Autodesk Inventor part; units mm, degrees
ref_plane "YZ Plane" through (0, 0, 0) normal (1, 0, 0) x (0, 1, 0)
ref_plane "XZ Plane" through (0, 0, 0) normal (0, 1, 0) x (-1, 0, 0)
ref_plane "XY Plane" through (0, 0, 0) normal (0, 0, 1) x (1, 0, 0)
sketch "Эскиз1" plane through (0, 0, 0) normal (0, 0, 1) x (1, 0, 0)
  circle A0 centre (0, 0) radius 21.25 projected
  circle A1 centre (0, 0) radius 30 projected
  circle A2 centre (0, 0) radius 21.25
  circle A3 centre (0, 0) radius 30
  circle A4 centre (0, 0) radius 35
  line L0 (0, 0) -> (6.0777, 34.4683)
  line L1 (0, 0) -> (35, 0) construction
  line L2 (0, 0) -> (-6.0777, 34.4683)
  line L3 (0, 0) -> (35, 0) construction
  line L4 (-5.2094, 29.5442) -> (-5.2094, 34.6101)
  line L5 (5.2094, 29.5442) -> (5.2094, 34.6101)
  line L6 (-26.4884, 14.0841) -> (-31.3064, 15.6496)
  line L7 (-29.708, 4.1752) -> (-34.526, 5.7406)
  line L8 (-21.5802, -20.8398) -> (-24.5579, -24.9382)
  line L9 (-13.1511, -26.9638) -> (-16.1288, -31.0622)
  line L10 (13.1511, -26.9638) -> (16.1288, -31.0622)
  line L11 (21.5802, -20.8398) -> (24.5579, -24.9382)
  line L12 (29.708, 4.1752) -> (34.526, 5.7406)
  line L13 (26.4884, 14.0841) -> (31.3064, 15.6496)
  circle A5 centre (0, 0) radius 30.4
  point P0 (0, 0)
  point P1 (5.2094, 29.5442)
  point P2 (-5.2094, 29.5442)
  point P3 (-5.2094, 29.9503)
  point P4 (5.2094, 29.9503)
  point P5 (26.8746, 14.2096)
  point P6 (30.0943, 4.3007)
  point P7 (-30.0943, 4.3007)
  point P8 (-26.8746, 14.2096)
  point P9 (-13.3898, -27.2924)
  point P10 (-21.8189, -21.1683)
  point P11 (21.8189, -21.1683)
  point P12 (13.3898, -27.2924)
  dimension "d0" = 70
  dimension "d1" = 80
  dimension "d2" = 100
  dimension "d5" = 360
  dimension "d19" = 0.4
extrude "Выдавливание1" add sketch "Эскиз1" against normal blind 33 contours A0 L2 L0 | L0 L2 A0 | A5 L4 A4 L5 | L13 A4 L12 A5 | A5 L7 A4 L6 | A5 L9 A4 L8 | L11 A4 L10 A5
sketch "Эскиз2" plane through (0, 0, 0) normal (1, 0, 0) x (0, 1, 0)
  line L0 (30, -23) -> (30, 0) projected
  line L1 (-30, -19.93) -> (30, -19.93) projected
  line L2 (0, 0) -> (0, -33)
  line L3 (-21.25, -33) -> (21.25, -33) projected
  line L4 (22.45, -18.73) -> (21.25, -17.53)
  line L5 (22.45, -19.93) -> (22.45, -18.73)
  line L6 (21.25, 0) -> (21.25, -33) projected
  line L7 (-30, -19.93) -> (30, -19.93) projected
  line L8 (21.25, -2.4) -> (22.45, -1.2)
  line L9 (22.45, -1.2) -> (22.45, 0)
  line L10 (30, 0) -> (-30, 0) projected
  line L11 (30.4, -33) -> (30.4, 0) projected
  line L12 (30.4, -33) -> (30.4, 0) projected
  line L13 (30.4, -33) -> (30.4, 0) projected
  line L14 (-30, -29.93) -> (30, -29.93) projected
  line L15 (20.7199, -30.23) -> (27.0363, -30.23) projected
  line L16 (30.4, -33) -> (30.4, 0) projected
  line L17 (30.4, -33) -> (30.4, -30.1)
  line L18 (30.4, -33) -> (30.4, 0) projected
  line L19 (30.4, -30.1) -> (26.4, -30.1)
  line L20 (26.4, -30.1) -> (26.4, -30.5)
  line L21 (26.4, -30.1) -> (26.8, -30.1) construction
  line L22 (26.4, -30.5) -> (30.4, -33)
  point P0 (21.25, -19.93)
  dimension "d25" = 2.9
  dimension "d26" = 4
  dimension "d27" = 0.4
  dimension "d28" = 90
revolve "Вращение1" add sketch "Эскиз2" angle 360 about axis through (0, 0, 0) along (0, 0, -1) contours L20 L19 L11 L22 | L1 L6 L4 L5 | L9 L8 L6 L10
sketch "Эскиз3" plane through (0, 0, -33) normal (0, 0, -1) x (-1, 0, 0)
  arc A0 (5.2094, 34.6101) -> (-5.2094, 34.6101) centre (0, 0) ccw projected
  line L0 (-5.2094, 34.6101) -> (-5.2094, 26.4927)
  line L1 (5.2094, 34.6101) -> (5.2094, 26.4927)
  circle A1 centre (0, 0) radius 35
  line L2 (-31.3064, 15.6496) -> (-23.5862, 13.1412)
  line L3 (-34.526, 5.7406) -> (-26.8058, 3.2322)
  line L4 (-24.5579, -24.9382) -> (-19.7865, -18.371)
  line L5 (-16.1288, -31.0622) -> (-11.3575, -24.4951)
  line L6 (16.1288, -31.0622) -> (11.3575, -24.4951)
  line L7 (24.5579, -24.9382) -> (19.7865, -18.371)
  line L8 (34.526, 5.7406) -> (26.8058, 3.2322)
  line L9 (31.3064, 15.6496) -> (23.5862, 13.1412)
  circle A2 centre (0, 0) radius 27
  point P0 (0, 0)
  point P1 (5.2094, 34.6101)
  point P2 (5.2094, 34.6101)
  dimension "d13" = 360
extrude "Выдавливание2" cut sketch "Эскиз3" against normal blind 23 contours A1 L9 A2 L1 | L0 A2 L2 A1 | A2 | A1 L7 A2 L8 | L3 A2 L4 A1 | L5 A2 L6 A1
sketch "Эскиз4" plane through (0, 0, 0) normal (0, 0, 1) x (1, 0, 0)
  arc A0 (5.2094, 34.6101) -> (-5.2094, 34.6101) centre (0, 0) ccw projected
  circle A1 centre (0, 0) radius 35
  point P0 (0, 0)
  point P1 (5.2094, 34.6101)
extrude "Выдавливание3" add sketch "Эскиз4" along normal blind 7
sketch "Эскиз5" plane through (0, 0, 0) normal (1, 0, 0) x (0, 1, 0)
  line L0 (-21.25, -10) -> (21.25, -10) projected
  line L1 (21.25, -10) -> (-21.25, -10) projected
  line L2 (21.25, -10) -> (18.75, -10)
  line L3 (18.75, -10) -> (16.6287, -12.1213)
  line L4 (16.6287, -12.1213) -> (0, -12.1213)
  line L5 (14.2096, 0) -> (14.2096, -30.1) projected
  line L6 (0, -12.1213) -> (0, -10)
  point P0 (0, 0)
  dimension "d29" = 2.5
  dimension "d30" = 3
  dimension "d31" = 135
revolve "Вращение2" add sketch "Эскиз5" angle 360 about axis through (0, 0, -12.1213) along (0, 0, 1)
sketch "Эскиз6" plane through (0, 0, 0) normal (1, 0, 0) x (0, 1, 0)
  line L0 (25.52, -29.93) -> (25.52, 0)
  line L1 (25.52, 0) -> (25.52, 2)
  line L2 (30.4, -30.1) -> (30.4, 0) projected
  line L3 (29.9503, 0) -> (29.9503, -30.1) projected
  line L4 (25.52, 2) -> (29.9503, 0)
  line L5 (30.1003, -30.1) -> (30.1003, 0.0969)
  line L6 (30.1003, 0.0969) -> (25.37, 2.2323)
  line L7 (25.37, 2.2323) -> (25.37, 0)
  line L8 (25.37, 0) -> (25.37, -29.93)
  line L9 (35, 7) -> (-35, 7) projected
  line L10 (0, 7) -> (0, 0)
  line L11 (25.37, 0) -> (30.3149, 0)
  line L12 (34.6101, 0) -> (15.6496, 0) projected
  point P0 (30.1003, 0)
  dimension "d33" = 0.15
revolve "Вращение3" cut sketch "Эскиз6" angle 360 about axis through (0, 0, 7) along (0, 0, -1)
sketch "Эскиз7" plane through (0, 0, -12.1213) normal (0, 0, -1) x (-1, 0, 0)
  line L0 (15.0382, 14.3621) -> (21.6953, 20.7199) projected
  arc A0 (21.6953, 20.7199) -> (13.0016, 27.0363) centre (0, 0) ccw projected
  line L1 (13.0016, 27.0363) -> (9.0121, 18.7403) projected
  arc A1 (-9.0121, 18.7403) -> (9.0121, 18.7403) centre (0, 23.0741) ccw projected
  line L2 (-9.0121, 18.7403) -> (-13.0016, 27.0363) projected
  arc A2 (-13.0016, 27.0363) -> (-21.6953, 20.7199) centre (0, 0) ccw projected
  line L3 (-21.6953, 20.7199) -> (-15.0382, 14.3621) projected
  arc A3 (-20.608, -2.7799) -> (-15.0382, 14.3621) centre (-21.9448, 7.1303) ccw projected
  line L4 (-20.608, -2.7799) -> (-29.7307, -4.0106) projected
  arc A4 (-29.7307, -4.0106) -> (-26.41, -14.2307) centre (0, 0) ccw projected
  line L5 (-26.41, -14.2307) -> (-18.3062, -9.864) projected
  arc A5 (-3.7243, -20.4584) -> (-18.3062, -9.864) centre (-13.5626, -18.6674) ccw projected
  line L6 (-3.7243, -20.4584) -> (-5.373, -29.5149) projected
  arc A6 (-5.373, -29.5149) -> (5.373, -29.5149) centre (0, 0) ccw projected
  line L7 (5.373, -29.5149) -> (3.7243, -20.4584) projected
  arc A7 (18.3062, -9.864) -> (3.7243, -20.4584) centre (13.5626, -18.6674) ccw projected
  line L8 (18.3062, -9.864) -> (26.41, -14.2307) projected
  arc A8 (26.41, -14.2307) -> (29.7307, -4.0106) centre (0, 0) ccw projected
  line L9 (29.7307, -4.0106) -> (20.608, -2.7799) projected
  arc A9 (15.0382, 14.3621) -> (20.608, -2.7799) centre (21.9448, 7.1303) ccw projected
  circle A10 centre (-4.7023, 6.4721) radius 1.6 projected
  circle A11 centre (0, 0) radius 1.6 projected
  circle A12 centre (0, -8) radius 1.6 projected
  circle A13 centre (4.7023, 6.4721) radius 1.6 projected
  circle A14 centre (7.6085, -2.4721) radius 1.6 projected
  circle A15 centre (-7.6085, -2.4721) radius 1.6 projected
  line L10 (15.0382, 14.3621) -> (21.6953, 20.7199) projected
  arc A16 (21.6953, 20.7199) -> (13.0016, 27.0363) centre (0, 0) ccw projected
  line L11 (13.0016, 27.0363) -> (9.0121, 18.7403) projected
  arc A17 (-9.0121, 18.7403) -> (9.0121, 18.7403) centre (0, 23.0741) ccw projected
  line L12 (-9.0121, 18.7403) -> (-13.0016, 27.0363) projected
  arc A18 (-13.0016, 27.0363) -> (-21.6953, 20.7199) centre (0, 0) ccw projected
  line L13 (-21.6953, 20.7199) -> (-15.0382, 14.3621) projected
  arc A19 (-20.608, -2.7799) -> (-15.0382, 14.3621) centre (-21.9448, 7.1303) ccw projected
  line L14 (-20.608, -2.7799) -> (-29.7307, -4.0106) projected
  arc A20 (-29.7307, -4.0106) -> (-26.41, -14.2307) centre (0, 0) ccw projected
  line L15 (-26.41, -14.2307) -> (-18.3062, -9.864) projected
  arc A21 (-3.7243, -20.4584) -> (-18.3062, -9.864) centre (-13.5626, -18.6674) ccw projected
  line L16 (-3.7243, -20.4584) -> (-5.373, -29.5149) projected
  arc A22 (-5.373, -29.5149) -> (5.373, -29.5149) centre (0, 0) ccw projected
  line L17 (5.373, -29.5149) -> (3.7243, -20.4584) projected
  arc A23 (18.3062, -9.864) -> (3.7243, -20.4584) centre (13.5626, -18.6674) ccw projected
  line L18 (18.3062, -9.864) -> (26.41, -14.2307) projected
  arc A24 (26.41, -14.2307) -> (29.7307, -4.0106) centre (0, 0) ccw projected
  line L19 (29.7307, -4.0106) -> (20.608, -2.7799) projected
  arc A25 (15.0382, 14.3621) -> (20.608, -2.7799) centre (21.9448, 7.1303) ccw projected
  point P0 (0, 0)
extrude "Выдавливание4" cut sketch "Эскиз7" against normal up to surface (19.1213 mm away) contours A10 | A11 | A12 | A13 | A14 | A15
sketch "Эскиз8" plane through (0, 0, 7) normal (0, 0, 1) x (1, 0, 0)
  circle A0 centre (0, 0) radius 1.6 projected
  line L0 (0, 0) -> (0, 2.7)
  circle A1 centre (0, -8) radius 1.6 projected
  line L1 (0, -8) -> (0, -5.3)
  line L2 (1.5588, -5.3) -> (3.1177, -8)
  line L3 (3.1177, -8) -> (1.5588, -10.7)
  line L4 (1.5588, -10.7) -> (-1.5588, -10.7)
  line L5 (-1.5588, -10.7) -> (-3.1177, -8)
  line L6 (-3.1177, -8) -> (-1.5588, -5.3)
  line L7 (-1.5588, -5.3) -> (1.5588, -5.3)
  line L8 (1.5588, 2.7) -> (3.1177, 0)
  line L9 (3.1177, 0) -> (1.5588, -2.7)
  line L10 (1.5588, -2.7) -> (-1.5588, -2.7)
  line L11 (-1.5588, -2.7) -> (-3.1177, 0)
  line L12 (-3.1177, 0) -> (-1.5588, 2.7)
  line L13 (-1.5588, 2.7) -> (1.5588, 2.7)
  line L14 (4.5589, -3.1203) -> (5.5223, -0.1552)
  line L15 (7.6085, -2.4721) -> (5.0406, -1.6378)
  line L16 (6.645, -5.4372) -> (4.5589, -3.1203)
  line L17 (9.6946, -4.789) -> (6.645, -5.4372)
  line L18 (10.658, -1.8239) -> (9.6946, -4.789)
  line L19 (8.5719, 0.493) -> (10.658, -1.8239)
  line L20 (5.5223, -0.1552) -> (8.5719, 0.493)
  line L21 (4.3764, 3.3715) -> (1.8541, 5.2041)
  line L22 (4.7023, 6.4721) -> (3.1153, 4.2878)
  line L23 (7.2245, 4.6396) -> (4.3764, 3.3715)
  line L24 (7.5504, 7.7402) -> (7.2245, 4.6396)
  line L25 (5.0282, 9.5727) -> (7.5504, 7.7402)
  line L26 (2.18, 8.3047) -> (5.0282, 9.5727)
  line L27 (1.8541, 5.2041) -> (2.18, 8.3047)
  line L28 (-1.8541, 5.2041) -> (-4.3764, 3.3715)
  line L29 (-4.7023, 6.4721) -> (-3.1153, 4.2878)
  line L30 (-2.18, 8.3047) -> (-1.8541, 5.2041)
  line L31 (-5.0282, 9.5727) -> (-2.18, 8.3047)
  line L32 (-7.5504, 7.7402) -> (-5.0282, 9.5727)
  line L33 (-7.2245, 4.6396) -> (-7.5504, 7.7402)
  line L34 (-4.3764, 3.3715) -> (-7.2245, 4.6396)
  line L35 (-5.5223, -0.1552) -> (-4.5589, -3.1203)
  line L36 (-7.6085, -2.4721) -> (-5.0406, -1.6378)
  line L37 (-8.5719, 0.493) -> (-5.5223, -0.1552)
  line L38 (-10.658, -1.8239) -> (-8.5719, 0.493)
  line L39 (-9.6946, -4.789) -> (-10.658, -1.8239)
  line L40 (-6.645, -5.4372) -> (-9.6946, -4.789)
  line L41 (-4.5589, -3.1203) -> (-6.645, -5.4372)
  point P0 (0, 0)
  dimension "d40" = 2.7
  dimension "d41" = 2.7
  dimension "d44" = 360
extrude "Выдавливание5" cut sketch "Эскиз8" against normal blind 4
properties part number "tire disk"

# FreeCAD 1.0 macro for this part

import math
import FreeCAD as App
import Part
import Sketcher
Q = App.Units.Quantity

doc = App.newDocument("Part")
body = doc.addObject("PartDesign::Body", "Body")
body.AllowCompound = True

sketch1 = body.newObject("Sketcher::SketchObject", "Sketch")
sketch1.AttachmentSupport = (doc.getObject("XY_Plane"), [""])
sketch1.MapMode = "FlatFace"
sketch1.addGeometry([
    Part.Circle(App.Vector(0, 0, 0), App.Vector(0, 0, 1), 21.2),
    Part.ArcOfCircle(Part.Circle(App.Vector(0, 0, 0), App.Vector(0, 0, 1), 30.4), math.radians(80.13), math.radians(99.87)),
    Part.LineSegment(App.Vector(5.2, 30, 0), App.Vector(5.2, 34.6, 0)),
    Part.ArcOfCircle(Part.Circle(App.Vector(0, 0, 0), App.Vector(0, 0, 1), 35), math.radians(81.44), math.radians(98.56)),
    Part.LineSegment(App.Vector(-5.2, 34.6, 0), App.Vector(-5.2, 30, 0)),
    Part.LineSegment(App.Vector(31.3, 15.6, 0), App.Vector(26.9, 14.2, 0)),
    Part.ArcOfCircle(Part.Circle(App.Vector(0, 0, 0), App.Vector(0, 0, 1), 30.4), math.radians(8.13), math.radians(27.87)),
    Part.LineSegment(App.Vector(30.1, 4.3, 0), App.Vector(34.5, 5.7, 0)),
    Part.ArcOfCircle(Part.Circle(App.Vector(0, 0, 0), App.Vector(0, 0, 1), 35), math.radians(9.44), math.radians(26.56)),
    Part.ArcOfCircle(Part.Circle(App.Vector(0, 0, 0), App.Vector(0, 0, 1), 30.4), math.radians(152.13), math.radians(171.87)),
    Part.LineSegment(App.Vector(-26.9, 14.2, 0), App.Vector(-31.3, 15.6, 0)),
    Part.ArcOfCircle(Part.Circle(App.Vector(0, 0, 0), App.Vector(0, 0, 1), 35), math.radians(153.44), math.radians(170.56)),
    Part.LineSegment(App.Vector(-34.5, 5.7, 0), App.Vector(-30.1, 4.3, 0)),
    Part.ArcOfCircle(Part.Circle(App.Vector(0, 0, 0), App.Vector(0, 0, 1), 30.4), math.radians(-135.87), math.radians(-116.13)),
    Part.LineSegment(App.Vector(-21.8, -21.2, 0), App.Vector(-24.6, -24.9, 0)),
    Part.ArcOfCircle(Part.Circle(App.Vector(0, 0, 0), App.Vector(0, 0, 1), 35), math.radians(-134.56), math.radians(-117.44)),
    Part.LineSegment(App.Vector(-16.1, -31.1, 0), App.Vector(-13.4, -27.3, 0)),
    Part.LineSegment(App.Vector(24.6, -24.9, 0), App.Vector(21.8, -21.2, 0)),
    Part.ArcOfCircle(Part.Circle(App.Vector(0, 0, 0), App.Vector(0, 0, 1), 30.4), math.radians(-63.87), math.radians(-44.13)),
    Part.LineSegment(App.Vector(13.4, -27.3, 0), App.Vector(16.1, -31.1, 0)),
    Part.ArcOfCircle(Part.Circle(App.Vector(0, 0, 0), App.Vector(0, 0, 1), 35), math.radians(-62.56), math.radians(-45.44)),
], False)
sketch1.addConstraint([
    Sketcher.Constraint("Coincident", 1, 1, 2, 1),
    Sketcher.Constraint("Coincident", 2, 2, 3, 1),
    Sketcher.Constraint("Coincident", 3, 2, 4, 1),
    Sketcher.Constraint("Coincident", 4, 2, 1, 2),
    Sketcher.Constraint("Coincident", 5, 2, 6, 2),
    Sketcher.Constraint("Coincident", 6, 1, 7, 1),
    Sketcher.Constraint("Coincident", 7, 2, 8, 1),
    Sketcher.Constraint("Coincident", 8, 2, 5, 1),
    Sketcher.Constraint("Coincident", 9, 1, 10, 1),
    Sketcher.Constraint("Coincident", 10, 2, 11, 1),
    Sketcher.Constraint("Coincident", 11, 2, 12, 1),
    Sketcher.Constraint("Coincident", 12, 2, 9, 2),
    Sketcher.Constraint("Coincident", 13, 1, 14, 1),
    Sketcher.Constraint("Coincident", 14, 2, 15, 1),
    Sketcher.Constraint("Coincident", 15, 2, 16, 1),
    Sketcher.Constraint("Coincident", 16, 2, 13, 2),
    Sketcher.Constraint("Coincident", 17, 2, 18, 2),
    Sketcher.Constraint("Coincident", 18, 1, 19, 1),
    Sketcher.Constraint("Coincident", 19, 2, 20, 1),
    Sketcher.Constraint("Coincident", 20, 2, 17, 1),
    Sketcher.Constraint("Vertical", 2),
    Sketcher.Constraint("Vertical", 4),
    Sketcher.Constraint("Coincident", 0, 3, -1, 1),
    Sketcher.Constraint("Coincident", 1, 3, -1, 1),
    Sketcher.Constraint("Coincident", 3, 3, -1, 1),
    Sketcher.Constraint("Coincident", 6, 3, -1, 1),
    Sketcher.Constraint("Coincident", 8, 3, -1, 1),
    Sketcher.Constraint("Coincident", 9, 3, -1, 1),
    Sketcher.Constraint("Coincident", 11, 3, -1, 1),
    Sketcher.Constraint("Coincident", 13, 3, -1, 1),
    Sketcher.Constraint("Coincident", 15, 3, -1, 1),
    Sketcher.Constraint("Coincident", 18, 3, -1, 1),
    Sketcher.Constraint("Coincident", 20, 3, -1, 1),
    Sketcher.Constraint("Equal", 1, 6),
    Sketcher.Constraint("Equal", 3, 8),
    Sketcher.Constraint("Equal", 6, 9),
    Sketcher.Constraint("Equal", 8, 11),
    Sketcher.Constraint("Equal", 9, 13),
    Sketcher.Constraint("Equal", 11, 15),
    Sketcher.Constraint("Equal", 13, 18),
    Sketcher.Constraint("Equal", 15, 20),
    Sketcher.Constraint("Parallel", 5, 7),
    Sketcher.Constraint("Parallel", 10, 12),
    Sketcher.Constraint("Parallel", 14, 16),
    Sketcher.Constraint("Parallel", 17, 19),
    Sketcher.Constraint("Horizontal", 2, 2, 3, 2),
    Sketcher.Constraint("Horizontal", 5, 2, 9, 1),
    Sketcher.Constraint("Horizontal", 8, 2, 10, 2),
    Sketcher.Constraint("Horizontal", 7, 2, 11, 2),
    Sketcher.Constraint("Horizontal", 13, 1, 17, 2),
    Sketcher.Constraint("Horizontal", 16, 2, 18, 1),
    Sketcher.Constraint("Horizontal", 15, 2, 19, 2),
    Sketcher.Constraint("Equal", 5, 7),
    Sketcher.Constraint("Equal", 12, 14),
    Sketcher.Constraint("Equal", 14, 16),
    Sketcher.Constraint("Radius", 3, Q("35 mm")),
    Sketcher.Constraint("Diameter", 0, Q("42.5 mm")),
    Sketcher.Constraint("Radius", 1, Q("30.4 mm")),
    Sketcher.Constraint("Angle", 5, Q("-161.9996 deg")),
    Sketcher.Constraint("Angle", 14, Q("-126.0003 deg")),
    Sketcher.Constraint("DistanceY", -1, 1, 2, 2, Q("34.61 mm")),
    Sketcher.Constraint("DistanceX", 13, 1, 15, 2, Q("5.69 mm")),
])
pad1 = body.newObject("PartDesign::Pad", "Pad")
pad1.Profile = sketch1
pad1.Length = 33
pad1.Reversed = True

sketch2 = body.newObject("Sketcher::SketchObject", "Sketch001")
sketch2.AttachmentSupport = (doc.getObject("YZ_Plane"), [""])
sketch2.MapMode = "FlatFace"
sketch2.addGeometry([
    Part.LineSegment(App.Vector(26.4, -30.1, 0), App.Vector(26.4, -30.5, 0)),
    Part.LineSegment(App.Vector(26.4, -30.5, 0), App.Vector(30.4, -33, 0)),
    Part.LineSegment(App.Vector(30.4, -33, 0), App.Vector(30.4, -30.1, 0)),
    Part.LineSegment(App.Vector(30.4, -30.1, 0), App.Vector(26.4, -30.1, 0)),
    Part.LineSegment(App.Vector(21.25, -19.93, 0), App.Vector(22.45, -19.93, 0)),
    Part.LineSegment(App.Vector(22.45, -19.93, 0), App.Vector(22.45, -18.73, 0)),
    Part.LineSegment(App.Vector(22.45, -18.73, 0), App.Vector(21.25, -17.53, 0)),
    Part.LineSegment(App.Vector(21.25, -17.53, 0), App.Vector(21.25, -19.93, 0)),
    Part.LineSegment(App.Vector(22.45, -1.2, 0), App.Vector(22.45, 0, 0)),
    Part.LineSegment(App.Vector(22.45, 0, 0), App.Vector(21.25, 0, 0)),
    Part.LineSegment(App.Vector(21.25, 0, 0), App.Vector(21.25, -2.4, 0)),
    Part.LineSegment(App.Vector(21.25, -2.4, 0), App.Vector(22.45, -1.2, 0)),
], False)
sketch2.addConstraint([
    Sketcher.Constraint("Coincident", 0, 2, 1, 1),
    Sketcher.Constraint("Coincident", 1, 2, 2, 1),
    Sketcher.Constraint("Coincident", 2, 2, 3, 1),
    Sketcher.Constraint("Coincident", 3, 2, 0, 1),
    Sketcher.Constraint("Coincident", 4, 2, 5, 1),
    Sketcher.Constraint("Coincident", 5, 2, 6, 1),
    Sketcher.Constraint("Coincident", 6, 2, 7, 1),
    Sketcher.Constraint("Coincident", 7, 2, 4, 1),
    Sketcher.Constraint("Coincident", 8, 2, 9, 1),
    Sketcher.Constraint("Coincident", 9, 2, 10, 1),
    Sketcher.Constraint("Coincident", 10, 2, 11, 1),
    Sketcher.Constraint("Coincident", 11, 2, 8, 1),
    Sketcher.Constraint("Vertical", 0),
    Sketcher.Constraint("Vertical", 2),
    Sketcher.Constraint("Horizontal", 3),
    Sketcher.Constraint("Horizontal", 4),
    Sketcher.Constraint("Vertical", 5),
    Sketcher.Constraint("Vertical", 7),
    Sketcher.Constraint("Vertical", 8),
    Sketcher.Constraint("Horizontal", 9),
    Sketcher.Constraint("Vertical", 10),
    Sketcher.Constraint("PointOnObject", 8, 2, -1),
    Sketcher.Constraint("Perpendicular", 6, 11),
    Sketcher.Constraint("Vertical", 5, 2, 8, 2),
    Sketcher.Constraint("Vertical", 7, 2, 9, 2),
    Sketcher.Constraint("Equal", 9, 5),
    Sketcher.Constraint("Equal", 5, 8),
    Sketcher.Constraint("Equal", 7, 10),
    Sketcher.Constraint("DistanceX", 3, 2, 3, 1, Q("4 mm")),
    Sketcher.Constraint("DistanceY", 0, 2, 0, 1, Q("0.4 mm")),
    Sketcher.Constraint("DistanceY", 2, 1, 2, 2, Q("2.9 mm")),
    Sketcher.Constraint("DistanceX", 4, 1, 4, 2, Q("1.2 mm")),
    Sketcher.Constraint("DistanceY", 1, 2, -1, 1, Q("33 mm")),
    Sketcher.Constraint("DistanceX", -1, 1, 0, 2, Q("26.4 mm")),
    Sketcher.Constraint("DistanceX", -1, 1, 4, 2, Q("22.45 mm")),
    Sketcher.Constraint("DistanceY", 4, 2, -1, 1, Q("19.93 mm")),
])
revolution = body.newObject("PartDesign::Revolution", "Revolution")
revolution.Profile = sketch2
revolution.ReferenceAxis = (sketch2, ["V_Axis"])
revolution.Angle = 360

sketch3 = body.newObject("Sketcher::SketchObject", "Sketch002")
sketch3.AttachmentSupport = (doc.getObject("XY_Plane"), [""])
sketch3.MapMode = "FlatFace"
sketch3.AttachmentOffset = App.Placement(App.Vector(0, 0, -33), App.Rotation())
sketch3.addGeometry([
    Part.ArcOfCircle(Part.Circle(App.Vector(0, 0, 0), App.Vector(0, 0, 1), 35), math.radians(99), math.radians(153)),
    Part.LineSegment(App.Vector(-5, 35, 0), App.Vector(-5, 26, 0)),
    Part.ArcOfCircle(Part.Circle(App.Vector(0, 0, 0), App.Vector(0, 0, 1), 27), math.radians(79), math.radians(101)),
    Part.LineSegment(App.Vector(5, 26, 0), App.Vector(5, 35, 0)),
    Part.ArcOfCircle(Part.Circle(App.Vector(0, 0, 0), App.Vector(0, 0, 1), 35), math.radians(27), math.radians(81)),
    Part.LineSegment(App.Vector(31, 16, 0), App.Vector(24, 13, 0)),
    Part.ArcOfCircle(Part.Circle(App.Vector(0, 0, 0), App.Vector(0, 0, 1), 27), math.radians(7), math.radians(29)),
    Part.LineSegment(App.Vector(27, 3, 0), App.Vector(35, 6, 0)),
    Part.ArcOfCircle(Part.Circle(App.Vector(0, 0, 0), App.Vector(0, 0, 1), 35), math.radians(-45), math.radians(9)),
    Part.LineSegment(App.Vector(25, -25, 0), App.Vector(20, -18, 0)),
    Part.ArcOfCircle(Part.Circle(App.Vector(0, 0, 0), App.Vector(0, 0, 1), 27), math.radians(-65), math.radians(-43)),
    Part.LineSegment(App.Vector(11, -24, 0), App.Vector(16, -31, 0)),
    Part.ArcOfCircle(Part.Circle(App.Vector(0, 0, 0), App.Vector(0, 0, 1), 35), math.radians(-117), math.radians(-63)),
    Part.LineSegment(App.Vector(-16, -31, 0), App.Vector(-11, -24, 0)),
    Part.ArcOfCircle(Part.Circle(App.Vector(0, 0, 0), App.Vector(0, 0, 1), 27), math.radians(-137), math.radians(-115)),
    Part.LineSegment(App.Vector(-20, -18, 0), App.Vector(-25, -25, 0)),
    Part.ArcOfCircle(Part.Circle(App.Vector(0, 0, 0), App.Vector(0, 0, 1), 35), math.radians(171), math.radians(225)),
    Part.LineSegment(App.Vector(-35, 6, 0), App.Vector(-27, 3, 0)),
    Part.ArcOfCircle(Part.Circle(App.Vector(0, 0, 0), App.Vector(0, 0, 1), 27), math.radians(151), math.radians(173)),
    Part.LineSegment(App.Vector(-24, 13, 0), App.Vector(-31, 16, 0)),
], False)
sketch3.addConstraint([
    Sketcher.Constraint("Coincident", 0, 1, 1, 1),
    Sketcher.Constraint("Coincident", 1, 2, 2, 2),
    Sketcher.Constraint("Coincident", 2, 1, 3, 1),
    Sketcher.Constraint("Coincident", 3, 2, 4, 2),
    Sketcher.Constraint("Coincident", 4, 1, 5, 1),
    Sketcher.Constraint("Coincident", 5, 2, 6, 2),
    Sketcher.Constraint("Coincident", 6, 1, 7, 1),
    Sketcher.Constraint("Coincident", 7, 2, 8, 2),
    Sketcher.Constraint("Coincident", 8, 1, 9, 1),
    Sketcher.Constraint("Coincident", 9, 2, 10, 2),
    Sketcher.Constraint("Coincident", 10, 1, 11, 1),
    Sketcher.Constraint("Coincident", 11, 2, 12, 2),
    Sketcher.Constraint("Coincident", 12, 1, 13, 1),
    Sketcher.Constraint("Coincident", 13, 2, 14, 2),
    Sketcher.Constraint("Coincident", 14, 1, 15, 1),
    Sketcher.Constraint("Coincident", 15, 2, 16, 2),
    Sketcher.Constraint("Coincident", 16, 1, 17, 1),
    Sketcher.Constraint("Coincident", 17, 2, 18, 2),
    Sketcher.Constraint("Coincident", 18, 1, 19, 1),
    Sketcher.Constraint("Coincident", 19, 2, 0, 2),
    Sketcher.Constraint("Vertical", 1),
    Sketcher.Constraint("Vertical", 3),
    Sketcher.Constraint("Coincident", 0, 3, -1, 1),
    Sketcher.Constraint("Coincident", 2, 3, -1, 1),
    Sketcher.Constraint("Coincident", 4, 3, -1, 1),
    Sketcher.Constraint("Coincident", 6, 3, -1, 1),
    Sketcher.Constraint("Coincident", 8, 3, -1, 1),
    Sketcher.Constraint("Coincident", 10, 3, -1, 1),
    Sketcher.Constraint("Coincident", 12, 3, -1, 1),
    Sketcher.Constraint("Coincident", 14, 3, -1, 1),
    Sketcher.Constraint("Coincident", 16, 3, -1, 1),
    Sketcher.Constraint("Coincident", 18, 3, -1, 1),
    Sketcher.Constraint("Equal", 0, 4),
    Sketcher.Constraint("Equal", 2, 6),
    Sketcher.Constraint("Equal", 4, 8),
    Sketcher.Constraint("Equal", 6, 10),
    Sketcher.Constraint("Equal", 8, 12),
    Sketcher.Constraint("Equal", 10, 14),
    Sketcher.Constraint("Equal", 12, 16),
    Sketcher.Constraint("Equal", 14, 18),
    Sketcher.Constraint("Parallel", 5, 7),
    Sketcher.Constraint("Parallel", 9, 11),
    Sketcher.Constraint("Parallel", 13, 15),
    Sketcher.Constraint("Parallel", 17, 19),
    Sketcher.Constraint("Horizontal", 1, 2, 2, 1),
    Sketcher.Constraint("Horizontal", 11, 2, 12, 1),
    Sketcher.Constraint("Horizontal", 10, 1, 13, 2),
    Sketcher.Constraint("Horizontal", 9, 2, 14, 1),
    Sketcher.Constraint("Horizontal", 7, 2, 16, 1),
    Sketcher.Constraint("Horizontal", 6, 1, 17, 2),
    Sketcher.Constraint("Horizontal", 5, 2, 18, 1),
    Sketcher.Constraint("Equal", 5, 7),
    Sketcher.Constraint("Equal", 7, 9),
    Sketcher.Constraint("Equal", 9, 11),
    Sketcher.Constraint("Radius", 0, Q("35 mm")),
    Sketcher.Constraint("Radius", 2, Q("27 mm")),
    Sketcher.Constraint("Angle", 5, Q("-162.0003 deg")),
    Sketcher.Constraint("Angle", 9, Q("126.0003 deg")),
    Sketcher.Constraint("DistanceY", -1, 1, 3, 2, Q("34.61 mm")),
    Sketcher.Constraint("DistanceX", -1, 1, 7, 2, Q("34.526 mm")),
])
pocket1 = body.newObject("PartDesign::Pocket", "Pocket")
pocket1.Profile = sketch3
pocket1.Length = 23
pocket1.Reversed = True

sketch4 = body.newObject("Sketcher::SketchObject", "Sketch003")
sketch4.AttachmentSupport = (doc.getObject("XY_Plane"), [""])
sketch4.MapMode = "FlatFace"
sketch4.addGeometry(Part.Circle(App.Vector(0, 0, 0), App.Vector(0, 0, 1), 35), False)
sketch4.addConstraint([
    Sketcher.Constraint("Coincident", 0, 3, -1, 1),
    Sketcher.Constraint("Diameter", 0, Q("70 mm")),
])
pad2 = body.newObject("PartDesign::Pad", "Pad001")
pad2.Profile = sketch4
pad2.Length = 7

sketch5 = body.newObject("Sketcher::SketchObject", "Sketch004")
sketch5.AttachmentSupport = (doc.getObject("YZ_Plane"), [""])
sketch5.MapMode = "FlatFace"
sketch5.addGeometry([
    Part.LineSegment(App.Vector(0, -10, 0), App.Vector(0, -12.1, 0)),
    Part.LineSegment(App.Vector(0, -12.1, 0), App.Vector(16.6, -12.1, 0)),
    Part.LineSegment(App.Vector(16.6, -12.1, 0), App.Vector(18.8, -10, 0)),
    Part.LineSegment(App.Vector(18.8, -10, 0), App.Vector(0, -10, 0)),
], False)
sketch5.addConstraint([
    Sketcher.Constraint("Coincident", 0, 2, 1, 1),
    Sketcher.Constraint("Coincident", 1, 2, 2, 1),
    Sketcher.Constraint("Coincident", 2, 2, 3, 1),
    Sketcher.Constraint("Coincident", 3, 2, 0, 1),
    Sketcher.Constraint("Vertical", 0),
    Sketcher.Constraint("Horizontal", 1),
    Sketcher.Constraint("Horizontal", 3),
    Sketcher.Constraint("PointOnObject", 0, 2, -2),
    Sketcher.Constraint("Distance", 2, Q("3 mm")),
    Sketcher.Constraint("Angle", 2, Q("45 deg")),
    Sketcher.Constraint("DistanceY", 2, 2, -1, 1, Q("10 mm")),
    Sketcher.Constraint("DistanceX", 3, 2, 3, 1, Q("18.75 mm")),
])
revolution2 = body.newObject("PartDesign::Revolution", "Revolution001")
revolution2.Profile = sketch5
revolution2.ReferenceAxis = (sketch5, ["V_Axis"])
revolution2.Angle = 360

sketch6 = body.newObject("Sketcher::SketchObject", "Sketch005")
sketch6.AttachmentSupport = (doc.getObject("YZ_Plane"), [""])
sketch6.MapMode = "FlatFace"
sketch6.addGeometry([
    Part.LineSegment(App.Vector(25.37, 0, 0), App.Vector(30.1, 0, 0)),
    Part.LineSegment(App.Vector(30.1, 0, 0), App.Vector(30.1, 0.1, 0)),
    Part.LineSegment(App.Vector(30.1, 0.1, 0), App.Vector(25.37, 2.23, 0)),
    Part.LineSegment(App.Vector(25.37, 2.23, 0), App.Vector(25.37, 0, 0)),
], False)
sketch6.addConstraint([
    Sketcher.Constraint("Coincident", 0, 2, 1, 1),
    Sketcher.Constraint("Coincident", 1, 2, 2, 1),
    Sketcher.Constraint("Coincident", 2, 2, 3, 1),
    Sketcher.Constraint("Coincident", 3, 2, 0, 1),
    Sketcher.Constraint("Horizontal", 0),
    Sketcher.Constraint("Vertical", 1),
    Sketcher.Constraint("Vertical", 3),
    Sketcher.Constraint("PointOnObject", 0, 2, -1),
    Sketcher.Constraint("Distance", 2, Q("5.19 mm")),
    Sketcher.Constraint("DistanceY", 1, 1, 1, 2, Q("0.097 mm")),
    Sketcher.Constraint("DistanceX", -1, 1, 2, 2, Q("25.37 mm")),
    Sketcher.Constraint("DistanceX", 0, 1, 0, 2, Q("4.7303 mm")),
])
groove = body.newObject("PartDesign::Groove", "Groove")
groove.Profile = sketch6
groove.ReferenceAxis = (sketch6, ["V_Axis"])
groove.Angle = 360

sketch7 = body.newObject("Sketcher::SketchObject", "Sketch006")
sketch7.AttachmentSupport = (doc.getObject("XY_Plane"), [""])
sketch7.MapMode = "FlatFace"
sketch7.AttachmentOffset = App.Placement(App.Vector(0, 0, -12.1213), App.Rotation())
sketch7.addGeometry([
    Part.Circle(App.Vector(4.7, 6.5, 0), App.Vector(0, 0, 1), 1.6),
    Part.Circle(App.Vector(0, 0, 0), App.Vector(0, 0, 1), 1.6),
    Part.Circle(App.Vector(0, -8, 0), App.Vector(0, 0, 1), 1.6),
    Part.Circle(App.Vector(-4.7, 6.5, 0), App.Vector(0, 0, 1), 1.6),
    Part.Circle(App.Vector(-7.6, -2.5, 0), App.Vector(0, 0, 1), 1.6),
    Part.Circle(App.Vector(7.6, -2.5, 0), App.Vector(0, 0, 1), 1.6),
], False)
sketch7.addConstraint([
    Sketcher.Constraint("Coincident", 1, 3, -1, 1),
    Sketcher.Constraint("Equal", 0, 1),
    Sketcher.Constraint("Equal", 1, 2),
    Sketcher.Constraint("Equal", 2, 3),
    Sketcher.Constraint("Equal", 3, 4),
    Sketcher.Constraint("Equal", 4, 5),
    Sketcher.Constraint("Symmetric", 0, 3, 3, 3, -2),
    Sketcher.Constraint("Symmetric", 4, 3, 5, 3, -2),
    Sketcher.Constraint("PointOnObject", 2, 3, -2),
    Sketcher.Constraint("Diameter", 0, Q("3.2 mm")),
    Sketcher.Constraint("DistanceY", 2, 3, -1, 1, Q("8 mm")),
    Sketcher.Constraint("DistanceY", -1, 1, 0, 3, Q("6.472 mm")),
    Sketcher.Constraint("DistanceY", 4, 3, -1, 1, Q("2.472 mm")),
    Sketcher.Constraint("DistanceX", 4, 3, 5, 3, Q("15.217 mm")),
    Sketcher.Constraint("DistanceX", -1, 1, 0, 3, Q("4.7023 mm")),
])
pocket2 = body.newObject("PartDesign::Pocket", "Pocket001")
pocket2.Profile = sketch7
pocket2.Length = 19.1213
pocket2.Reversed = True

sketch8 = body.newObject("Sketcher::SketchObject", "Sketch007")
sketch8.AttachmentSupport = (doc.getObject("XY_Plane"), [""])
sketch8.MapMode = "FlatFace"
sketch8.AttachmentOffset = App.Placement(App.Vector(0, 0, 7), App.Rotation())
sketch8.addGeometry([
    Part.LineSegment(App.Vector(1.6, 2.7, 0), App.Vector(0, 2.7, 0)),
    Part.LineSegment(App.Vector(0, 2.7, 0), App.Vector(-1.6, 2.7, 0)),
    Part.LineSegment(App.Vector(-1.6, 2.7, 0), App.Vector(-3.1, 0, 0)),
    Part.LineSegment(App.Vector(-3.1, 0, 0), App.Vector(-1.6, -2.7, 0)),
    Part.LineSegment(App.Vector(-1.6, -2.7, 0), App.Vector(1.6, -2.7, 0)),
    Part.LineSegment(App.Vector(1.6, -2.7, 0), App.Vector(3.1, 0, 0)),
    Part.LineSegment(App.Vector(3.1, 0, 0), App.Vector(1.6, 2.7, 0)),
    Part.Circle(App.Vector(0, 0, 0), App.Vector(0, 0, 1), 1.6),
    Part.LineSegment(App.Vector(1.6, -5.3, 0), App.Vector(0, -5.3, 0)),
    Part.LineSegment(App.Vector(0, -5.3, 0), App.Vector(-1.6, -5.3, 0)),
    Part.LineSegment(App.Vector(-1.6, -5.3, 0), App.Vector(-3.1, -8, 0)),
    Part.LineSegment(App.Vector(-3.1, -8, 0), App.Vector(-1.6, -10.7, 0)),
    Part.LineSegment(App.Vector(-1.6, -10.7, 0), App.Vector(1.6, -10.7, 0)),
    Part.LineSegment(App.Vector(1.6, -10.7, 0), App.Vector(3.1, -8, 0)),
    Part.LineSegment(App.Vector(3.1, -8, 0), App.Vector(1.6, -5.3, 0)),
    Part.Circle(App.Vector(0, -8, 0), App.Vector(0, 0, 1), 1.6),
    Part.LineSegment(App.Vector(5.5, -0.2, 0), App.Vector(4.6, -3.1, 0)),
    Part.LineSegment(App.Vector(4.6, -3.1, 0), App.Vector(6.6, -5.4, 0)),
    Part.LineSegment(App.Vector(6.6, -5.4, 0), App.Vector(9.7, -4.8, 0)),
    Part.LineSegment(App.Vector(9.7, -4.8, 0), App.Vector(10.7, -1.8, 0)),
    Part.LineSegment(App.Vector(10.7, -1.8, 0), App.Vector(8.6, 0.5, 0)),
    Part.LineSegment(App.Vector(8.6, 0.5, 0), App.Vector(5.5, -0.2, 0)),
    Part.LineSegment(App.Vector(1.9, 5.2, 0), App.Vector(4.4, 3.4, 0)),
    Part.LineSegment(App.Vector(4.4, 3.4, 0), App.Vector(7.2, 4.6, 0)),
    Part.LineSegment(App.Vector(7.2, 4.6, 0), App.Vector(7.6, 7.7, 0)),
    Part.LineSegment(App.Vector(7.6, 7.7, 0), App.Vector(5, 9.6, 0)),
    Part.LineSegment(App.Vector(5, 9.6, 0), App.Vector(2.2, 8.3, 0)),
    Part.LineSegment(App.Vector(2.2, 8.3, 0), App.Vector(1.9, 5.2, 0)),
    Part.LineSegment(App.Vector(-4.4, 3.4, 0), App.Vector(-1.9, 5.2, 0)),
    Part.LineSegment(App.Vector(-1.9, 5.2, 0), App.Vector(-2.2, 8.3, 0)),
    Part.LineSegment(App.Vector(-2.2, 8.3, 0), App.Vector(-5, 9.6, 0)),
    Part.LineSegment(App.Vector(-5, 9.6, 0), App.Vector(-7.6, 7.7, 0)),
    Part.LineSegment(App.Vector(-7.6, 7.7, 0), App.Vector(-7.2, 4.6, 0)),
    Part.LineSegment(App.Vector(-7.2, 4.6, 0), App.Vector(-4.4, 3.4, 0)),
    Part.LineSegment(App.Vector(-4.6, -3.1, 0), App.Vector(-5.5, -0.2, 0)),
    Part.LineSegment(App.Vector(-5.5, -0.2, 0), App.Vector(-8.6, 0.5, 0)),
    Part.LineSegment(App.Vector(-8.6, 0.5, 0), App.Vector(-10.7, -1.8, 0)),
    Part.LineSegment(App.Vector(-10.7, -1.8, 0), App.Vector(-9.7, -4.8, 0)),
    Part.LineSegment(App.Vector(-9.7, -4.8, 0), App.Vector(-6.6, -5.4, 0)),
    Part.LineSegment(App.Vector(-6.6, -5.4, 0), App.Vector(-4.6, -3.1, 0)),
], False)
sketch8.addConstraint([
    Sketcher.Constraint("Coincident", 0, 2, 1, 1),
    Sketcher.Constraint("Coincident", 1, 2, 2, 1),
    Sketcher.Constraint("Coincident", 2, 2, 3, 1),
    Sketcher.Constraint("Coincident", 3, 2, 4, 1),
    Sketcher.Constraint("Coincident", 4, 2, 5, 1),
    Sketcher.Constraint("Coincident", 5, 2, 6, 1),
    Sketcher.Constraint("Coincident", 6, 2, 0, 1),
    Sketcher.Constraint("Coincident", 8, 2, 9, 1),
    Sketcher.Constraint("Coincident", 9, 2, 10, 1),
    Sketcher.Constraint("Coincident", 10, 2, 11, 1),
    Sketcher.Constraint("Coincident", 11, 2, 12, 1),
    Sketcher.Constraint("Coincident", 12, 2, 13, 1),
    Sketcher.Constraint("Coincident", 13, 2, 14, 1),
    Sketcher.Constraint("Coincident", 14, 2, 8, 1),
    Sketcher.Constraint("Coincident", 16, 2, 17, 1),
    Sketcher.Constraint("Coincident", 17, 2, 18, 1),
    Sketcher.Constraint("Coincident", 18, 2, 19, 1),
    Sketcher.Constraint("Coincident", 19, 2, 20, 1),
    Sketcher.Constraint("Coincident", 20, 2, 21, 1),
    Sketcher.Constraint("Coincident", 21, 2, 16, 1),
    Sketcher.Constraint("Coincident", 22, 2, 23, 1),
    Sketcher.Constraint("Coincident", 23, 2, 24, 1),
    Sketcher.Constraint("Coincident", 24, 2, 25, 1),
    Sketcher.Constraint("Coincident", 25, 2, 26, 1),
    Sketcher.Constraint("Coincident", 26, 2, 27, 1),
    Sketcher.Constraint("Coincident", 27, 2, 22, 1),
    Sketcher.Constraint("Coincident", 28, 2, 29, 1),
    Sketcher.Constraint("Coincident", 29, 2, 30, 1),
    Sketcher.Constraint("Coincident", 30, 2, 31, 1),
    Sketcher.Constraint("Coincident", 31, 2, 32, 1),
    Sketcher.Constraint("Coincident", 32, 2, 33, 1),
    Sketcher.Constraint("Coincident", 33, 2, 28, 1),
    Sketcher.Constraint("Coincident", 34, 2, 35, 1),
    Sketcher.Constraint("Coincident", 35, 2, 36, 1),
    Sketcher.Constraint("Coincident", 36, 2, 37, 1),
    Sketcher.Constraint("Coincident", 37, 2, 38, 1),
    Sketcher.Constraint("Coincident", 38, 2, 39, 1),
    Sketcher.Constraint("Coincident", 39, 2, 34, 1),
    Sketcher.Constraint("Horizontal", 0),
    Sketcher.Constraint("Horizontal", 1),
    Sketcher.Constraint("Horizontal", 4),
    Sketcher.Constraint("Horizontal", 8),
    Sketcher.Constraint("Horizontal", 9),
    Sketcher.Constraint("Horizontal", 12),
    Sketcher.Constraint("Coincident", 7, 3, -1, 1),
    Sketcher.Constraint("Equal", 7, 15),
    Sketcher.Constraint("Symmetric", 1, 2, 4, 2, -1, 1),
    Sketcher.Constraint("Symmetric", 2, 2, 5, 2, -1, 1),
    Sketcher.Constraint("Symmetric", 10, 2, 13, 2, -2),
    Sketcher.Constraint("Symmetric", 27, 2, 28, 2, -2),
    Sketcher.Constraint("Symmetric", 26, 2, 29, 2, -2),
    Sketcher.Constraint("Symmetric", 25, 2, 30, 2, -2),
    Sketcher.Constraint("Symmetric", 24, 2, 31, 2, -2),
    Sketcher.Constraint("Symmetric", 23, 2, 32, 2, -2),
    Sketcher.Constraint("Symmetric", 22, 2, 33, 2, -2),
    Sketcher.Constraint("Symmetric", 21, 2, 34, 2, -2),
    Sketcher.Constraint("Symmetric", 20, 2, 35, 2, -2),
    Sketcher.Constraint("Symmetric", 19, 2, 36, 2, -2),
    Sketcher.Constraint("Symmetric", 18, 2, 37, 2, -2),
    Sketcher.Constraint("Symmetric", 17, 2, 38, 2, -2),
    Sketcher.Constraint("Symmetric", 16, 2, 39, 2, -2),
    Sketcher.Constraint("PointOnObject", 15, 3, -2),
    Sketcher.Constraint("PointOnObject", 0, 2, -2),
    Sketcher.Constraint("PointOnObject", 2, 2, -1),
    Sketcher.Constraint("PointOnObject", 8, 2, -2),
    Sketcher.Constraint("Parallel", 3, 6),
    Sketcher.Constraint("Parallel", 5, 10),
    Sketcher.Constraint("Parallel", 6, 11),
    Sketcher.Constraint("Parallel", 10, 13),
    Sketcher.Constraint("Parallel", 11, 14),
    Sketcher.Constraint("Parallel", 16, 19),
    Sketcher.Constraint("Parallel", 17, 20),
    Sketcher.Constraint("Parallel", 18, 21),
    Sketcher.Constraint("Parallel", 22, 25),
    Sketcher.Constraint("Parallel", 23, 26),
    Sketcher.Constraint("Parallel", 24, 27),
    Sketcher.Constraint("Horizontal", 15, 3, 10, 2),
    Sketcher.Constraint("Vertical", 1, 2, 3, 2),
    Sketcher.Constraint("Vertical", 3, 2, 9, 2),
    Sketcher.Constraint("Vertical", 2, 2, 10, 2),
    Sketcher.Constraint("Vertical", 9, 2, 11, 2),
    Sketcher.Constraint("Equal", 14, 16),
    Sketcher.Constraint("Equal", 16, 17),
    Sketcher.Constraint("Equal", 17, 18),
    Sketcher.Constraint("Equal", 18, 19),
    Sketcher.Constraint("Equal", 21, 22),
    Sketcher.Constraint("Equal", 22, 23),
    Sketcher.Constraint("Equal", 23, 24),
    Sketcher.Constraint("Equal", 24, 25),
    Sketcher.Constraint("Diameter", 7, Q("3.2 mm")),
    Sketcher.Constraint("DistanceY", -1, 1, 0, 2, Q("2.7 mm")),
    Sketcher.Constraint("Angle", 2, Q("-120.0009 deg")),
    Sketcher.Constraint("Angle", 16, Q("-107.9997 deg")),
    Sketcher.Constraint("Angle", 17, Q("-48.0006 deg")),
    Sketcher.Constraint("Angle", 18, Q("11.9998 deg")),
    Sketcher.Constraint("Angle", 22, Q("-36.0006 deg")),
    Sketcher.Constraint("Angle", 23, Q("24.0007 deg")),
    Sketcher.Constraint("Angle", 24, Q("83.9997 deg")),
    Sketcher.Constraint("DistanceY", 15, 3, -1, 1, Q("8 mm")),
    Sketcher.Constraint("DistanceX", 4, 2, 16, 2, Q("3 mm")),
    Sketcher.Constraint("DistanceX", -1, 1, 26, 2, Q("2.18 mm")),
    Sketcher.Constraint("DistanceX", 0, 2, 0, 1, Q("1.5588 mm")),
    Sketcher.Constraint("DistanceY", 18, 2, -1, 1, Q("4.789 mm")),
    Sketcher.Constraint("DistanceY", -1, 1, 27, 2, Q("5.204 mm")),
])
pocket3 = body.newObject("PartDesign::Pocket", "Pocket002")
pocket3.Profile = sketch8
pocket3.Length = 4

doc.recompute()
